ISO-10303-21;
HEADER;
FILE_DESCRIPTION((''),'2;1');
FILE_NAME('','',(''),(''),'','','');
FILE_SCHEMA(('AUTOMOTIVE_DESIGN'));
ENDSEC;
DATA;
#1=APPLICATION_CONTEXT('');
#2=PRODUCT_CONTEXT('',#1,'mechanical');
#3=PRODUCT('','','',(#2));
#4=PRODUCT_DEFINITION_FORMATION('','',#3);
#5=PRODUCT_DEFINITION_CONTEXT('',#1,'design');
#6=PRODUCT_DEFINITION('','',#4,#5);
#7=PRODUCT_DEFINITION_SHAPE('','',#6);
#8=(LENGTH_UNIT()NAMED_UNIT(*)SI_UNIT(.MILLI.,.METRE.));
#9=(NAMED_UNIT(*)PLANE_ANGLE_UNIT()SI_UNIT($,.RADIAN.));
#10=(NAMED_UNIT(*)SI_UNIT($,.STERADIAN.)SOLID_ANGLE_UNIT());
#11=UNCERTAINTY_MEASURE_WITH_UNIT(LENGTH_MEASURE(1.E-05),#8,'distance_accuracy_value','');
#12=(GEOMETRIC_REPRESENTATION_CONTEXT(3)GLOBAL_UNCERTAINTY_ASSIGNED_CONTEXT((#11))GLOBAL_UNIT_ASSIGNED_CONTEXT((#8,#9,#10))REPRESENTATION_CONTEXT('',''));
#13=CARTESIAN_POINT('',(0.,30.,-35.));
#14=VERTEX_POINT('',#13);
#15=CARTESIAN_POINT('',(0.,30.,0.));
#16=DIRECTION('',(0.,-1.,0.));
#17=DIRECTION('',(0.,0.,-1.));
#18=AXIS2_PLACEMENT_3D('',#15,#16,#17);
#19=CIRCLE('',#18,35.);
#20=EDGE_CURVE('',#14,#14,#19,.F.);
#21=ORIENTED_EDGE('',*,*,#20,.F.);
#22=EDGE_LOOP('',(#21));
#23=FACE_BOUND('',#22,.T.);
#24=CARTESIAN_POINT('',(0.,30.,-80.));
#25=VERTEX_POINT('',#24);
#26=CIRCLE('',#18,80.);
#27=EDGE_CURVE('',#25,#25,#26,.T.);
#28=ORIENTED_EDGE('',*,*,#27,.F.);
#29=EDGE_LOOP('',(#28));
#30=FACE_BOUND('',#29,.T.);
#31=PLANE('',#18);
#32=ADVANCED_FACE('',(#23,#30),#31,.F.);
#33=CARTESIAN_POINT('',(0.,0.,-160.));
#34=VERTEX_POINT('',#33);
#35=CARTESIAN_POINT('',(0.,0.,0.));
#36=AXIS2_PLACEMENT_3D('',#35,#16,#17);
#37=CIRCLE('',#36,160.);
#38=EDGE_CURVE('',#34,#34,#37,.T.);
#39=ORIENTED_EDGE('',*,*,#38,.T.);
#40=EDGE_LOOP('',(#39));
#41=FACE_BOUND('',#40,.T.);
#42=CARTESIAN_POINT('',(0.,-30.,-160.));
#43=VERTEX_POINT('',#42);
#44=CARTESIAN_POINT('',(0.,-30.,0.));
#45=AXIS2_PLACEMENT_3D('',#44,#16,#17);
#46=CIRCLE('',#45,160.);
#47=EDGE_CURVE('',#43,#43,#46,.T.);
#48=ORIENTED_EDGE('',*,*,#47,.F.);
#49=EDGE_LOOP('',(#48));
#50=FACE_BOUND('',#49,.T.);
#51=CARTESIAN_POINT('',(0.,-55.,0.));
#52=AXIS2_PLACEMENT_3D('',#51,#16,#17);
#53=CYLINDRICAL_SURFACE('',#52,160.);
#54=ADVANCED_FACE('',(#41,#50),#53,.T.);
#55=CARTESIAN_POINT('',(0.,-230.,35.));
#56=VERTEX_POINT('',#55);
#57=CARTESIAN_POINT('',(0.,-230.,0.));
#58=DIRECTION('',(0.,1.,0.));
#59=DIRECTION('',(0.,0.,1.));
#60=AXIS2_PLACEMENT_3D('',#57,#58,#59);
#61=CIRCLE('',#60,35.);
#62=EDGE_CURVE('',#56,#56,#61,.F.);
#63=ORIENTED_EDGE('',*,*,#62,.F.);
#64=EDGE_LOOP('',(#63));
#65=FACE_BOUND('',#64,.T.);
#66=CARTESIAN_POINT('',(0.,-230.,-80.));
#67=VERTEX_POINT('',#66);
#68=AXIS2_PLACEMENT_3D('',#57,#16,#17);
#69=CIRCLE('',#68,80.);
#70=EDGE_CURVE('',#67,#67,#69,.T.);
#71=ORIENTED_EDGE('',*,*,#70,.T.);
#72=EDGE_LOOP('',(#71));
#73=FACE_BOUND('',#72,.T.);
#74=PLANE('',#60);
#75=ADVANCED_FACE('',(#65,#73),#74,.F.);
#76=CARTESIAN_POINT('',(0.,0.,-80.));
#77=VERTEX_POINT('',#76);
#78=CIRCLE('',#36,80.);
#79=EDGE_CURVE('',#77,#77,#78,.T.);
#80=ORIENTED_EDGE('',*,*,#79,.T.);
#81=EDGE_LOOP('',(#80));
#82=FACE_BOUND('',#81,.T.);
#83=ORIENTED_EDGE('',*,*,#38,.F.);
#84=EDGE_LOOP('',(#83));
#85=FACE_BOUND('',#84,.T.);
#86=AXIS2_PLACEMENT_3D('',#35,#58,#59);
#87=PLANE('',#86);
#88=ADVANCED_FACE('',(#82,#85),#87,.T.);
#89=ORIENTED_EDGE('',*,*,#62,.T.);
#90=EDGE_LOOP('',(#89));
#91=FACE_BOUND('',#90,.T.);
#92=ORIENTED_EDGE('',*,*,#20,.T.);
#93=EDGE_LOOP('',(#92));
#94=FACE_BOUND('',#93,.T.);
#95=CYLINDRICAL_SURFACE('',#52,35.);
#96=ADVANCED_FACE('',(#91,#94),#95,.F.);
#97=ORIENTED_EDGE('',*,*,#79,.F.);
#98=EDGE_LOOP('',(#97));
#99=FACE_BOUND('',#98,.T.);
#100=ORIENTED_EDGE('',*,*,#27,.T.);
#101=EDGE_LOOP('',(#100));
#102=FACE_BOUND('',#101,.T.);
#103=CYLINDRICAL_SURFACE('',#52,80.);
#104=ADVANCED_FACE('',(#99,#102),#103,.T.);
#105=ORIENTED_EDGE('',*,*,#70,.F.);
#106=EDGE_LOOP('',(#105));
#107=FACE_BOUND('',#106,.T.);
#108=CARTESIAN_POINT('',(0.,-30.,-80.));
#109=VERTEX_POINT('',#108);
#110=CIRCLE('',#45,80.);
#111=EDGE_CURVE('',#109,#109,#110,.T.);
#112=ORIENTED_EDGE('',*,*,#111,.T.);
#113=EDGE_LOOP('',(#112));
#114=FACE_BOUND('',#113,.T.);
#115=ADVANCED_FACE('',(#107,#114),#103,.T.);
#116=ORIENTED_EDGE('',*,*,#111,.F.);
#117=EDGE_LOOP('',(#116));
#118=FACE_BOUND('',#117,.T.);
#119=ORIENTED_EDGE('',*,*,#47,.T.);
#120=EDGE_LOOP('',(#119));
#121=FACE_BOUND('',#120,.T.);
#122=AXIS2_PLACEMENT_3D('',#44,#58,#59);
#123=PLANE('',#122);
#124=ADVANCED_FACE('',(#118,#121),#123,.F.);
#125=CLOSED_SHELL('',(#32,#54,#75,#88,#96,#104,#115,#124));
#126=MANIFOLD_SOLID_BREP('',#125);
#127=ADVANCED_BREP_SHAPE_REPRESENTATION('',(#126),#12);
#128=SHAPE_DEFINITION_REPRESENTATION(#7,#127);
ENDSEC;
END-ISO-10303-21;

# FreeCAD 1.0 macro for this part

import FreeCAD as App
import Part
import Sketcher
from FreeCAD import Vector
Q = App.Units.Quantity


def add_polygon(sketch, points):
    """Adds a closed chain of lines whose ends are joined by coincident constraints."""
    first, n = sketch.GeometryCount, len(points)
    for a, b in zip(points, points[1:] + points[:1]):
        sketch.addGeometry(Part.LineSegment(App.Vector(*a, 0), App.Vector(*b, 0)), False)
    for i in range(n):
        sketch.addConstraint(Sketcher.Constraint("Coincident", first + i, 2, first + (i + 1) % n, 1))

doc = App.newDocument("Part")
body = doc.addObject("PartDesign::Body", "Body")

# Sketch on XY plane
sketch1 = body.newObject("Sketcher::SketchObject", "Sketch")
sketch1.AttachmentSupport = (doc.getObject("XY_Plane"), [""])
sketch1.MapMode = "FlatFace"
add_polygon(sketch1, [(0, 30), (-80, 30), (-80, 0), (-160, 0), (-160, -30), (-80, -30), (-80, -230), (0, -230)])  # lines 0-7
sketch1.addConstraint([
    Sketcher.Constraint("Horizontal", 0),
    Sketcher.Constraint("Vertical", 1),
    Sketcher.Constraint("Horizontal", 2),
    Sketcher.Constraint("Vertical", 3),
    Sketcher.Constraint("Horizontal", 4),
    Sketcher.Constraint("Vertical", 5),
    Sketcher.Constraint("Horizontal", 6),
    Sketcher.Constraint("Vertical", 7),
    Sketcher.Constraint("Symmetric", 0, 2, 4, 2, -1),
    Sketcher.Constraint("PointOnObject", 1, 2, -1),
    Sketcher.Constraint("PointOnObject", 6, 2, -2),
    Sketcher.Constraint("Equal", 0, 2),
    Sketcher.Constraint("DistanceX", 0, 2, 0, 1, Q("80 mm")),
    Sketcher.Constraint("DistanceY", 1, 2, 1, 1, Q("30 mm")),
    Sketcher.Constraint("DistanceY", 5, 2, 5, 1, Q("200 mm")),
])
revolution = body.newObject("PartDesign::Revolution", "Revolution")
revolution.Profile = sketch1
revolution.ReferenceAxis = (sketch1, ["V_Axis"])
revolution.Angle = 360

# Sketch on XY plane
sketch2 = body.newObject("Sketcher::SketchObject", "Sketch001")
sketch2.AttachmentSupport = (doc.getObject("XY_Plane"), [""])
sketch2.MapMode = "FlatFace"
add_polygon(sketch2, [(-35, 53.408705), (-35, -251.456173), (0, -251.456173), (0, 53.408705)])  # lines 0-3
sketch2.addConstraint([
    Sketcher.Constraint("Vertical", 0),
    Sketcher.Constraint("Horizontal", 1),
    Sketcher.Constraint("Vertical", 2),
    Sketcher.Constraint("Horizontal", 3),
    Sketcher.Constraint("PointOnObject", 1, 2, -2),
    Sketcher.Constraint("DistanceX", 1, 1, 1, 2, Q("35 mm")),
    Sketcher.Constraint("DistanceY", 0, 2, 0, 1, Q("304.864878 mm")),
    Sketcher.Constraint("DistanceY", 0, 2, -1, 1, Q("251.456173 mm")),
])
groove = body.newObject("PartDesign::Groove", "Groove")
groove.Profile = sketch2
groove.ReferenceAxis = (sketch2, ["V_Axis"])
groove.Angle = 360

doc.recompute()
